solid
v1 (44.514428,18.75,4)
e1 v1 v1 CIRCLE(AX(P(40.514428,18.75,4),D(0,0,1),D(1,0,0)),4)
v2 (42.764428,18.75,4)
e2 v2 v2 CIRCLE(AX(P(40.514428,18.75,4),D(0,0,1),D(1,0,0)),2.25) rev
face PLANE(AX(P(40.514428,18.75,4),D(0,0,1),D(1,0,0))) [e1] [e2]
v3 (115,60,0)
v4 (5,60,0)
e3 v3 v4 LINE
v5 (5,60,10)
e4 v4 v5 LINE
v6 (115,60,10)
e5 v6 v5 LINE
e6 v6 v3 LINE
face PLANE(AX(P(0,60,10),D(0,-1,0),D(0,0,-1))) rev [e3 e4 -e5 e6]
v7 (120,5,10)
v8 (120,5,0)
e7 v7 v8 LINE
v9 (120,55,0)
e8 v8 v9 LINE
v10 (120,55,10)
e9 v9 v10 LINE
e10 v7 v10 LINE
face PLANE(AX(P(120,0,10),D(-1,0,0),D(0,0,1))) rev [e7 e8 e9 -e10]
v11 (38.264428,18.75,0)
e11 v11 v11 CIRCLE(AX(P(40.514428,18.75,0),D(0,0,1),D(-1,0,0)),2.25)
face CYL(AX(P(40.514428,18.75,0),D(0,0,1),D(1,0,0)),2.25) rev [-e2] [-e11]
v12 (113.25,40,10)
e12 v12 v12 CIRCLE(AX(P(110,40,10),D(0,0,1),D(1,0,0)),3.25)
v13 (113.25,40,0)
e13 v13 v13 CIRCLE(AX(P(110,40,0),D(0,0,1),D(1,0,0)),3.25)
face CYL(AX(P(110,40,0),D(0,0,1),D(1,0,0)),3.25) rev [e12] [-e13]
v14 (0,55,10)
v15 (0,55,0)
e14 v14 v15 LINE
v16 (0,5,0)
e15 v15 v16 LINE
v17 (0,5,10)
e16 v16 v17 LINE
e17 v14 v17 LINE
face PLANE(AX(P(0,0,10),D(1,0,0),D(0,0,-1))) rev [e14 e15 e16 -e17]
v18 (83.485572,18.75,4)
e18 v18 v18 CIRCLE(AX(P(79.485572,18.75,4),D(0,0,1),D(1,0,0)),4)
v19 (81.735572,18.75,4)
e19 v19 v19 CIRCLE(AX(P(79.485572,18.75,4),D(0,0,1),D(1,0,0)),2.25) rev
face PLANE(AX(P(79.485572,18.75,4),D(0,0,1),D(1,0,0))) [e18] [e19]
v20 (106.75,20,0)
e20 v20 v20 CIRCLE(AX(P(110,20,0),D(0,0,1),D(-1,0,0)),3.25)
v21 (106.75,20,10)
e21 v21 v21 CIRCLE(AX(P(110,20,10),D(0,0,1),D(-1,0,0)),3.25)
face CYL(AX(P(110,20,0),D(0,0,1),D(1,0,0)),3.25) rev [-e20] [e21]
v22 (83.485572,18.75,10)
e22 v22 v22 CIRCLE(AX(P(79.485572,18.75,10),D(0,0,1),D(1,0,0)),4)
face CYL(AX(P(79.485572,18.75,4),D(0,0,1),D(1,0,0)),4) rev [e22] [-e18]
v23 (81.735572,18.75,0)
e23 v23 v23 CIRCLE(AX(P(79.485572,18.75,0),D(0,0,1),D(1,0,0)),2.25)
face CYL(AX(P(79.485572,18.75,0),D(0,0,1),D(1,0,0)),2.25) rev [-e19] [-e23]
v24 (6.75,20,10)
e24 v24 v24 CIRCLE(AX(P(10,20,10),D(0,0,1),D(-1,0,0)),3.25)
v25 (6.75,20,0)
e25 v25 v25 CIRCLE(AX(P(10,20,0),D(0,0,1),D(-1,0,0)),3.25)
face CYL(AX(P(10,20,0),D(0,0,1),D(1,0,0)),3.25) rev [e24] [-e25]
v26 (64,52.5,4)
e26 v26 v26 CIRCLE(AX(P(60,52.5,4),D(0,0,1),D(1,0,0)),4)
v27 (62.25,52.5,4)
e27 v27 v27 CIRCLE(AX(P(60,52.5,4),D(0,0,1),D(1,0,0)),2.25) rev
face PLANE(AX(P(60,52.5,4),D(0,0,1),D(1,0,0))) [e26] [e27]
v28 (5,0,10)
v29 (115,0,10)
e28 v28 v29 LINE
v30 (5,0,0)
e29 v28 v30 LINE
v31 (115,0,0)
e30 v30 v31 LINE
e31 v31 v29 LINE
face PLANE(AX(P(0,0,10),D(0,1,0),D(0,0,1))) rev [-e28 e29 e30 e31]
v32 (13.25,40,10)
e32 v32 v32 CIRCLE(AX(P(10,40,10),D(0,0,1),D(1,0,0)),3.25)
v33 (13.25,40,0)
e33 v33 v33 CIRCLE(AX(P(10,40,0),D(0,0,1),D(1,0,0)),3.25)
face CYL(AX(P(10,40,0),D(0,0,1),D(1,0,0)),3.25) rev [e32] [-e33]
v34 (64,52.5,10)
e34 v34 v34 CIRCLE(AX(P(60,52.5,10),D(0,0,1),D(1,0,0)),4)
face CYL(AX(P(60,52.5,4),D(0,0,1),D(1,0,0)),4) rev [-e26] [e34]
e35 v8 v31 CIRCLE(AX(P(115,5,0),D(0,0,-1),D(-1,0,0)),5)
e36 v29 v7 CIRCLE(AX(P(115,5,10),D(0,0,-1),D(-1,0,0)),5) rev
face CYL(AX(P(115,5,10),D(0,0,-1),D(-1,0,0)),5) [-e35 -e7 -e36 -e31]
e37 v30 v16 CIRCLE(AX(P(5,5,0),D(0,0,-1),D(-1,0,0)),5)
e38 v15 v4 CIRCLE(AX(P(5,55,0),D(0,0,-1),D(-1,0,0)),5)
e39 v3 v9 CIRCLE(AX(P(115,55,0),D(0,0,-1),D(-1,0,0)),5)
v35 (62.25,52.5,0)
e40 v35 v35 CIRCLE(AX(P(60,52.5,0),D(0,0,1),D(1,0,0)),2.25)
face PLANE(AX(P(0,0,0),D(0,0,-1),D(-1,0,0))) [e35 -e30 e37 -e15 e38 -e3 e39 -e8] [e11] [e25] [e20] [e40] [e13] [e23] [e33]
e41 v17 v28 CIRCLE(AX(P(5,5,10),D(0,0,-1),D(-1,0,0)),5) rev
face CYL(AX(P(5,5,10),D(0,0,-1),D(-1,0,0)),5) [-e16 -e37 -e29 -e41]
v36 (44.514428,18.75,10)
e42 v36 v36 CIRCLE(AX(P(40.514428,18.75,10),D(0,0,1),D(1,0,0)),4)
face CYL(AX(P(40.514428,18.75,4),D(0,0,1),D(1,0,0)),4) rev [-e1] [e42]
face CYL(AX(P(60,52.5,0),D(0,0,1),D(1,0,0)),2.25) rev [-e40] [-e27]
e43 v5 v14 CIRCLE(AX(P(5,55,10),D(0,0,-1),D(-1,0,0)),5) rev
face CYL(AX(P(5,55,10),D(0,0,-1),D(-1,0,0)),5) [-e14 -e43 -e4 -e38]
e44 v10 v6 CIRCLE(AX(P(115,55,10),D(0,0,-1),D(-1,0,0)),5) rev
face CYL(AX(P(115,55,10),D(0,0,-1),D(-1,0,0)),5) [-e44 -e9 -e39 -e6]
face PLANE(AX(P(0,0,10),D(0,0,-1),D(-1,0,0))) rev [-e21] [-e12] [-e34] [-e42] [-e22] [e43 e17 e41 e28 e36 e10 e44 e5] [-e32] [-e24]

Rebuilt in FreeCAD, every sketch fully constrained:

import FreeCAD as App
import Part
import Sketcher


def edges_at(feature, points):
    """Names of the edges that pass closest to the given points."""
    edges = feature.Shape.Edges
    near = lambda p: min(range(len(edges)), key=lambda i: edges[i].distToShape(Part.Vertex(*p))[0])
    return sorted({f"Edge{near(p) + 1}" for p in points})

doc = App.newDocument("Part")
body = doc.addObject("PartDesign::Body", "Body")

sketch1 = body.newObject("Sketcher::SketchObject", "Sketch")
sketch1.AttachmentSupport = (doc.getObject("XY_Plane"), [""])
sketch1.MapMode = "FlatFace"
sketch1.addGeometry([
    Part.LineSegment(App.Vector(0, 60, 0), App.Vector(0, 0, 0)),
    Part.LineSegment(App.Vector(0, 0, 0), App.Vector(120, 0, 0)),
    Part.LineSegment(App.Vector(120, 0, 0), App.Vector(120, 60, 0)),
    Part.LineSegment(App.Vector(120, 60, 0), App.Vector(0, 60, 0)),
], False)
sketch1.addConstraint([
    Sketcher.Constraint("Coincident", 0, 2, 1, 1),
    Sketcher.Constraint("Coincident", 1, 2, 2, 1),
    Sketcher.Constraint("Coincident", 2, 2, 3, 1),
    Sketcher.Constraint("Coincident", 3, 2, 0, 1),
    Sketcher.Constraint("Vertical", 0),
    Sketcher.Constraint("Horizontal", 1),
    Sketcher.Constraint("Vertical", 2),
    Sketcher.Constraint("Horizontal", 3),
    Sketcher.Constraint("Coincident", 0, 2, -1, 1),
    Sketcher.Constraint("DistanceX", 1, 1, 1, 2, 120.0),
    Sketcher.Constraint("DistanceY", 0, 2, 0, 1, 60.0),
])
pad1 = body.newObject("PartDesign::Pad", "Pad")
pad1.Profile = sketch1
pad1.Length = 10

sketch2 = body.newObject("Sketcher::SketchObject", "Sketch001")
sketch2.AttachmentSupport = (doc.getObject("XY_Plane"), [""])
sketch2.MapMode = "FlatFace"
sketch2.AttachmentOffset = App.Placement(App.Vector(0, 0, 10), App.Rotation())
sketch2.addGeometry([
    Part.Circle(App.Vector(10, 40, 0), App.Vector(0, 0, 1), 3.25),
    Part.Circle(App.Vector(110, 40, 0), App.Vector(0, 0, 1), 3.25),
    Part.Circle(App.Vector(110, 20, 0), App.Vector(0, 0, 1), 3.25),
    Part.Circle(App.Vector(10, 20, 0), App.Vector(0, 0, 1), 3.25),
], False)
sketch2.addConstraint([
    Sketcher.Constraint("Equal", 0, 1),
    Sketcher.Constraint("Equal", 1, 2),
    Sketcher.Constraint("Equal", 2, 3),
    Sketcher.Constraint("Horizontal", 0, 3, 1, 3),
    Sketcher.Constraint("Horizontal", 2, 3, 3, 3),
    Sketcher.Constraint("Vertical", 1, 3, 2, 3),
    Sketcher.Constraint("Vertical", 0, 3, 3, 3),
    Sketcher.Constraint("Diameter", 0, 6.5),
    Sketcher.Constraint("DistanceX", -1, 1, 0, 3, 10.0),
    Sketcher.Constraint("DistanceY", -1, 1, 0, 3, 40.0),
    Sketcher.Constraint("DistanceX", -1, 1, 1, 3, 110.0),
    Sketcher.Constraint("DistanceY", -1, 1, 2, 3, 20.0),
])
pocket1 = body.newObject("PartDesign::Pocket", "Pocket")
pocket1.Profile = sketch2
pocket1.Type = "ThroughAll"

sketch3 = body.newObject("Sketcher::SketchObject", "Sketch002")
sketch3.AttachmentSupport = (doc.getObject("XY_Plane"), [""])
sketch3.MapMode = "FlatFace"
sketch3.AttachmentOffset = App.Placement(App.Vector(0, 0, 10), App.Rotation())
sketch3.addGeometry([
    Part.Circle(App.Vector(60, 52.5, 0), App.Vector(0, 0, 1), 2.25),
    Part.Circle(App.Vector(79.485572, 18.75, 0), App.Vector(0, 0, 1), 2.25),
    Part.Circle(App.Vector(40.514428, 18.75, 0), App.Vector(0, 0, 1), 2.25),
], False)
sketch3.addConstraint([
    Sketcher.Constraint("Equal", 0, 1),
    Sketcher.Constraint("Equal", 1, 2),
    Sketcher.Constraint("Horizontal", 1, 3, 2, 3),
    Sketcher.Constraint("Diameter", 0, 4.5),
    Sketcher.Constraint("DistanceX", -1, 1, 0, 3, 60.0),
    Sketcher.Constraint("DistanceY", -1, 1, 0, 3, 52.5),
    Sketcher.Constraint("DistanceY", -1, 1, 1, 3, 18.75),
    Sketcher.Constraint("DistanceX", -1, 1, 1, 3, 79.485572),
    Sketcher.Constraint("DistanceX", -1, 1, 2, 3, 40.514428),
])
pocket2 = body.newObject("PartDesign::Pocket", "Pocket001")
pocket2.Profile = sketch3
pocket2.Type = "ThroughAll"

sketch4 = body.newObject("Sketcher::SketchObject", "Sketch003")
sketch4.AttachmentSupport = (doc.getObject("XY_Plane"), [""])
sketch4.MapMode = "FlatFace"
sketch4.AttachmentOffset = App.Placement(App.Vector(0, 0, 10), App.Rotation())
sketch4.addGeometry([
    Part.Circle(App.Vector(60, 52.5, 0), App.Vector(0, 0, 1), 4),
    Part.Circle(App.Vector(79.485572, 18.75, 0), App.Vector(0, 0, 1), 4),
    Part.Circle(App.Vector(40.514428, 18.75, 0), App.Vector(0, 0, 1), 4),
], False)
sketch4.addConstraint([
    Sketcher.Constraint("Equal", 0, 1),
    Sketcher.Constraint("Equal", 1, 2),
    Sketcher.Constraint("Horizontal", 1, 3, 2, 3),
    Sketcher.Constraint("Diameter", 0, 8.0),
    Sketcher.Constraint("DistanceX", -1, 1, 0, 3, 60.0),
    Sketcher.Constraint("DistanceY", -1, 1, 0, 3, 52.5),
    Sketcher.Constraint("DistanceY", -1, 1, 1, 3, 18.75),
    Sketcher.Constraint("DistanceX", -1, 1, 1, 3, 79.485572),
    Sketcher.Constraint("DistanceX", -1, 1, 2, 3, 40.514428),
])
pocket3 = body.newObject("PartDesign::Pocket", "Pocket002")
pocket3.Profile = sketch4
pocket3.Length = 6
doc.recompute()

fillet = body.newObject("PartDesign::Fillet", "Fillet")
fillet.Base = (pocket3, edges_at(pocket3, [
    (0, 60, 5),
    (120, 60, 5),
    (120, 0, 5),
    (0, 0, 5),
]))
fillet.Radius = 5

doc.recompute()
